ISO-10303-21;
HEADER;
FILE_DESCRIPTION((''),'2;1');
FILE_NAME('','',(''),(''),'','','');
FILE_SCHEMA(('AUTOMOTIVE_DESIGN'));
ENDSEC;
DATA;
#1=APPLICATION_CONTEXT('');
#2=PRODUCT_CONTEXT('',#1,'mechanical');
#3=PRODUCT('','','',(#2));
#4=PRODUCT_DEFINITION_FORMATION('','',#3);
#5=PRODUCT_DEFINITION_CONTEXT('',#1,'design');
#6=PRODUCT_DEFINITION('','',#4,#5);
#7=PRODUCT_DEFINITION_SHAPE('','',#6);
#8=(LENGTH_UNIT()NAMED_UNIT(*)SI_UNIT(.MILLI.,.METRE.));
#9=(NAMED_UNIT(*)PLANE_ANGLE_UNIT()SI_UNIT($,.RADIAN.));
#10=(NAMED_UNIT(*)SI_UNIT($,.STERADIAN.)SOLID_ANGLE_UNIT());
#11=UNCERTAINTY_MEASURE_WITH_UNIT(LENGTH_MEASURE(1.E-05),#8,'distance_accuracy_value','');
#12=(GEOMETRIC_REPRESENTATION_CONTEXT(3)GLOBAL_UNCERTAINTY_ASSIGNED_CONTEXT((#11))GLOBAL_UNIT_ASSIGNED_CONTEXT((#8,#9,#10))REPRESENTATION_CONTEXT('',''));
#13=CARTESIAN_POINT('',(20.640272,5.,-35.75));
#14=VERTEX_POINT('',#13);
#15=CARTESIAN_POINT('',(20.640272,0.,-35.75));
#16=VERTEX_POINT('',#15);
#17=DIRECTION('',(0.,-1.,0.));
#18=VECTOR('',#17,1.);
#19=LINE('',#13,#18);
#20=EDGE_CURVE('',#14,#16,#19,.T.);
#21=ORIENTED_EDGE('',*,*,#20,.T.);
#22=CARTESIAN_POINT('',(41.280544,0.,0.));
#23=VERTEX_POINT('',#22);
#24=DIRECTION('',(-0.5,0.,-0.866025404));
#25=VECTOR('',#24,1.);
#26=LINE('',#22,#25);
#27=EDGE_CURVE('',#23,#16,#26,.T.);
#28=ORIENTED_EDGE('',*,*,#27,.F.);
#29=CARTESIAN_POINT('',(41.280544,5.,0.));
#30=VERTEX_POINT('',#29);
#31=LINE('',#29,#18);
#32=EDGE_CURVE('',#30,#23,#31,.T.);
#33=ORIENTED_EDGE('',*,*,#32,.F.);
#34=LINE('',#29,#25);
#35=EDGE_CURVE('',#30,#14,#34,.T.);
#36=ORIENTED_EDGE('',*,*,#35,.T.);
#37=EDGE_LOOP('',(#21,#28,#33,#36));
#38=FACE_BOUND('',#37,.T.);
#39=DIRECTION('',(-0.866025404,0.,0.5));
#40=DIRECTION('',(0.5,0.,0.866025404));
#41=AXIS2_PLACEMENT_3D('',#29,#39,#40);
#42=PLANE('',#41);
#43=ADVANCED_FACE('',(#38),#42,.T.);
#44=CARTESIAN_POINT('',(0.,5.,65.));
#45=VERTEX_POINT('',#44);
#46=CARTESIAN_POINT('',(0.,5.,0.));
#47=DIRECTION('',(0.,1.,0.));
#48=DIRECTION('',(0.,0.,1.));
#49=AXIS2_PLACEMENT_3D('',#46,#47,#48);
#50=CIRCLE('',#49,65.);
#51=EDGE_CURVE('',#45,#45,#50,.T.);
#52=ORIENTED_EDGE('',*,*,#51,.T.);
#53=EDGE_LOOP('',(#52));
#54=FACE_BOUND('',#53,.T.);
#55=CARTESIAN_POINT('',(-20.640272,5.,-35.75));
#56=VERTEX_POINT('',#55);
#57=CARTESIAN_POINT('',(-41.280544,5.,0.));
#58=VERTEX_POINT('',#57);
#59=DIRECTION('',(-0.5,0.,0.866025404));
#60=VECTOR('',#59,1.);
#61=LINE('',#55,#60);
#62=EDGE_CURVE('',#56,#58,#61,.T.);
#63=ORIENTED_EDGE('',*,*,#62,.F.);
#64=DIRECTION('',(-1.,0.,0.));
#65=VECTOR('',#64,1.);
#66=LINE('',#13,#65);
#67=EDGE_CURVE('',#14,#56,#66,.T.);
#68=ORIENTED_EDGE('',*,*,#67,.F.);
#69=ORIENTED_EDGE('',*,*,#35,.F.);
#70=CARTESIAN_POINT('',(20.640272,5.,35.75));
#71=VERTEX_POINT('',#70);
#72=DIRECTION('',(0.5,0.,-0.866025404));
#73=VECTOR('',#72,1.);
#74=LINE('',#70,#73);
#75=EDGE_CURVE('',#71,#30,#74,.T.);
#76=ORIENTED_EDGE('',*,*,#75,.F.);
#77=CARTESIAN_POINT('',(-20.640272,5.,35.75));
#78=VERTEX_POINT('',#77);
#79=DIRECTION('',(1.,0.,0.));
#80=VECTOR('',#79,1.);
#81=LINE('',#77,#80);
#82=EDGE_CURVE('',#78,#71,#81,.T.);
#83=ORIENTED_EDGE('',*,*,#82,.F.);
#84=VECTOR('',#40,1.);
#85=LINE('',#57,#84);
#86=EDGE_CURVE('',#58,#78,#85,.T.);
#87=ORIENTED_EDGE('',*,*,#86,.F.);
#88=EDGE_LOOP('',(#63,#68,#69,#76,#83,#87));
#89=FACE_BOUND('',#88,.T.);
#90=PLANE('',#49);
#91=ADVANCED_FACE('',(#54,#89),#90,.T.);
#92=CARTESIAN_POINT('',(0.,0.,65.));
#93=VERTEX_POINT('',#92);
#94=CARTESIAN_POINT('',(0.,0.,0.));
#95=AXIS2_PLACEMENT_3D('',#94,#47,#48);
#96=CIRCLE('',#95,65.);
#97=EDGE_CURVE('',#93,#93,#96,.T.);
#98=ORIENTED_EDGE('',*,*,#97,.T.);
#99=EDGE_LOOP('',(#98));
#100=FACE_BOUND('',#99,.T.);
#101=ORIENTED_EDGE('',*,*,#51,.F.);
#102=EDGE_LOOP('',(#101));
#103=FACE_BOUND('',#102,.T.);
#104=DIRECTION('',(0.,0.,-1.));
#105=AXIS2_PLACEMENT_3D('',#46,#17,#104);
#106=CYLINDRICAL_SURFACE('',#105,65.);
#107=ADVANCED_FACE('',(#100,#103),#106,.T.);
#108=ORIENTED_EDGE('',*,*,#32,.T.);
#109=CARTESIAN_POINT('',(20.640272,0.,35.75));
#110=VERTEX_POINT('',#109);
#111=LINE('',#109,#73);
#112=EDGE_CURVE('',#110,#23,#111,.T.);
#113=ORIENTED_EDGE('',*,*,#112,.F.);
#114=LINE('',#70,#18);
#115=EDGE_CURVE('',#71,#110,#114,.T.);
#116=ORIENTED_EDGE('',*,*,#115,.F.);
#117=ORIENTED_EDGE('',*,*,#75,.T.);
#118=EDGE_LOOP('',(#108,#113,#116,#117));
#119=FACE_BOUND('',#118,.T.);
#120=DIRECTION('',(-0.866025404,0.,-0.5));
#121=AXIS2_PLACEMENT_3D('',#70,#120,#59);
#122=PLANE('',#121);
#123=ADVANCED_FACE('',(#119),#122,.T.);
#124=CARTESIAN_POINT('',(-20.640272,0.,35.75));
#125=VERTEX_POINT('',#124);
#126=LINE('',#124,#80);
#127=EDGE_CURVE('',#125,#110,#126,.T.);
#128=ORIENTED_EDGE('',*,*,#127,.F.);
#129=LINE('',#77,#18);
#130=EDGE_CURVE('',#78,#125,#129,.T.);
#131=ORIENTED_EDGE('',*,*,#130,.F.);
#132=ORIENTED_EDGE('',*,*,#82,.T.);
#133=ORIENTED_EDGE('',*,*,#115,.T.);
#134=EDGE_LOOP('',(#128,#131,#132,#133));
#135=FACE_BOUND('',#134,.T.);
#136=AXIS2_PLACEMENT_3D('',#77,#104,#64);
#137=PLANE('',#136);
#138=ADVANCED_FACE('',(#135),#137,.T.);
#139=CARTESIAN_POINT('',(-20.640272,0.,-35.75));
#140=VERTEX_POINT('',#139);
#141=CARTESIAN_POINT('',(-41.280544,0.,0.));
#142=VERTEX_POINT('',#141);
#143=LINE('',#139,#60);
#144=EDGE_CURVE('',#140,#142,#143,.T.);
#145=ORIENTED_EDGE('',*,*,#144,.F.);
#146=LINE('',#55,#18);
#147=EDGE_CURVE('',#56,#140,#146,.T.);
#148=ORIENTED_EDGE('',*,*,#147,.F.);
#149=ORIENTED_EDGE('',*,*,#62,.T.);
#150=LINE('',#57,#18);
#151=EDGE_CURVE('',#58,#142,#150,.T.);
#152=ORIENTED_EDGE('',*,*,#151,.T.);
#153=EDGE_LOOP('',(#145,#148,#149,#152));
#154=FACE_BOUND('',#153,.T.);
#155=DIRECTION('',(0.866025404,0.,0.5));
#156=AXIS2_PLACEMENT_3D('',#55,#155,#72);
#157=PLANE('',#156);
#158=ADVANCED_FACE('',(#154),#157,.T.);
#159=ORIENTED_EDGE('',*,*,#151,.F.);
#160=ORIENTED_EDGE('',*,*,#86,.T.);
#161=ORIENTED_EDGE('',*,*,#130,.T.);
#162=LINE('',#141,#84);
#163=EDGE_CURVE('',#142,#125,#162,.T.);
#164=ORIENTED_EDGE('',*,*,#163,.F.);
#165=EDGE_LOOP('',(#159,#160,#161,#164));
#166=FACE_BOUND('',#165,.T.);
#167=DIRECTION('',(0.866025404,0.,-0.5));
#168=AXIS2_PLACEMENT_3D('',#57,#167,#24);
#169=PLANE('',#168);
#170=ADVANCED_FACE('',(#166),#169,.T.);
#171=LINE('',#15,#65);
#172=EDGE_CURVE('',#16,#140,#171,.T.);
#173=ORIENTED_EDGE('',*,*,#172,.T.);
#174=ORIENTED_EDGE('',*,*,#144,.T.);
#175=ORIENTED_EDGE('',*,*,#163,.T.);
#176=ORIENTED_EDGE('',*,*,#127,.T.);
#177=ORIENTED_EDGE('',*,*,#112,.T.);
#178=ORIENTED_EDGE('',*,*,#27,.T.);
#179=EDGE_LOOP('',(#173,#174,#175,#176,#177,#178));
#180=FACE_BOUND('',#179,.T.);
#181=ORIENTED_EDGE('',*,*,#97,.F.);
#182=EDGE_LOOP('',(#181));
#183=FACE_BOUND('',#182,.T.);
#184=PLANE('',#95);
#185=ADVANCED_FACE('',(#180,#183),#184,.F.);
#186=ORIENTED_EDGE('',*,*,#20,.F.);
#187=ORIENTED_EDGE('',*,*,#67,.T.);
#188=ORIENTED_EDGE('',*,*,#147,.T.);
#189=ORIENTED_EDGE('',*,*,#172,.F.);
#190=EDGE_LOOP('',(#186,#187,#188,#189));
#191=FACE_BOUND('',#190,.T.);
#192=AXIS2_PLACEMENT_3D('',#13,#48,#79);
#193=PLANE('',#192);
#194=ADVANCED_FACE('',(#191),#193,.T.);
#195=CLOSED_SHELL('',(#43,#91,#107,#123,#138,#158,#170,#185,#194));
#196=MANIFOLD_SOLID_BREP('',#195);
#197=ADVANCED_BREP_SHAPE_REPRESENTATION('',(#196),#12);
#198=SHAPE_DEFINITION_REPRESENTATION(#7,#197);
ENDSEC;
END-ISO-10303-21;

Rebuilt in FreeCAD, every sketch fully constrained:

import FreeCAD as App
import Part
import Sketcher

V = App.Vector
Q = App.Units.Quantity


def add_polygon(sketch, points):
    """Adds a closed chain of lines whose ends are joined by coincident constraints."""
    first, n = sketch.GeometryCount, len(points)
    for a, b in zip(points, points[1:] + points[:1]):
        sketch.addGeometry(Part.LineSegment(App.Vector(*a, 0), App.Vector(*b, 0)), False)
    for i in range(n):
        sketch.addConstraint(Sketcher.Constraint("Coincident", first + i, 2, first + (i + 1) % n, 1))

doc = App.newDocument("Part")
body = doc.addObject("PartDesign::Body", "Body")

# Sketch on XZ plane
sketch1 = doc.addObject("Sketcher::SketchObject", "Sketch")
body.addObject(sketch1)
sketch1.AttachmentSupport = (doc.XZ_Plane, [""])
sketch1.MapMode = "FlatFace"
sketch1.addGeometry(Part.Circle(V(0, 0, 0), V(0, 0, 1), 65), False)  # 0
add_polygon(sketch1, [(20.640272, -35.75), (41.280544, 0), (20.640272, 35.75), (-20.640272, 35.75), (-41.280544, 0), (-20.640272, -35.75)])  # lines 1-6
sketch1.addConstraint([
    Sketcher.Constraint("Horizontal", 3),
    Sketcher.Constraint("Horizontal", 6),
    Sketcher.Constraint("Coincident", 0, 3, -1, 1),
    Sketcher.Constraint("Symmetric", 1, 2, 4, 2, -1, 1),
    Sketcher.Constraint("Symmetric", 2, 2, 5, 2, -1, 1),
    Sketcher.Constraint("PointOnObject", 1, 2, -1),
    Sketcher.Constraint("Parallel", 1, 4),
    Sketcher.Constraint("Vertical", 3, 2, 5, 2),
    Sketcher.Constraint("Diameter", 0, Q("130 mm")),
    Sketcher.Constraint("Angle", 1, Q("60 deg")),
    Sketcher.Constraint("DistanceY", 5, 2, 3, 2, Q("71.5 mm")),
    Sketcher.Constraint("DistanceX", 3, 2, 3, 1, Q("41.280544 mm")),
])
pad1 = doc.addObject("PartDesign::Pad", "Pad")
body.addObject(pad1)
pad1.Profile = sketch1
pad1.Length = 5
pad1.Reversed = True

doc.recompute()
